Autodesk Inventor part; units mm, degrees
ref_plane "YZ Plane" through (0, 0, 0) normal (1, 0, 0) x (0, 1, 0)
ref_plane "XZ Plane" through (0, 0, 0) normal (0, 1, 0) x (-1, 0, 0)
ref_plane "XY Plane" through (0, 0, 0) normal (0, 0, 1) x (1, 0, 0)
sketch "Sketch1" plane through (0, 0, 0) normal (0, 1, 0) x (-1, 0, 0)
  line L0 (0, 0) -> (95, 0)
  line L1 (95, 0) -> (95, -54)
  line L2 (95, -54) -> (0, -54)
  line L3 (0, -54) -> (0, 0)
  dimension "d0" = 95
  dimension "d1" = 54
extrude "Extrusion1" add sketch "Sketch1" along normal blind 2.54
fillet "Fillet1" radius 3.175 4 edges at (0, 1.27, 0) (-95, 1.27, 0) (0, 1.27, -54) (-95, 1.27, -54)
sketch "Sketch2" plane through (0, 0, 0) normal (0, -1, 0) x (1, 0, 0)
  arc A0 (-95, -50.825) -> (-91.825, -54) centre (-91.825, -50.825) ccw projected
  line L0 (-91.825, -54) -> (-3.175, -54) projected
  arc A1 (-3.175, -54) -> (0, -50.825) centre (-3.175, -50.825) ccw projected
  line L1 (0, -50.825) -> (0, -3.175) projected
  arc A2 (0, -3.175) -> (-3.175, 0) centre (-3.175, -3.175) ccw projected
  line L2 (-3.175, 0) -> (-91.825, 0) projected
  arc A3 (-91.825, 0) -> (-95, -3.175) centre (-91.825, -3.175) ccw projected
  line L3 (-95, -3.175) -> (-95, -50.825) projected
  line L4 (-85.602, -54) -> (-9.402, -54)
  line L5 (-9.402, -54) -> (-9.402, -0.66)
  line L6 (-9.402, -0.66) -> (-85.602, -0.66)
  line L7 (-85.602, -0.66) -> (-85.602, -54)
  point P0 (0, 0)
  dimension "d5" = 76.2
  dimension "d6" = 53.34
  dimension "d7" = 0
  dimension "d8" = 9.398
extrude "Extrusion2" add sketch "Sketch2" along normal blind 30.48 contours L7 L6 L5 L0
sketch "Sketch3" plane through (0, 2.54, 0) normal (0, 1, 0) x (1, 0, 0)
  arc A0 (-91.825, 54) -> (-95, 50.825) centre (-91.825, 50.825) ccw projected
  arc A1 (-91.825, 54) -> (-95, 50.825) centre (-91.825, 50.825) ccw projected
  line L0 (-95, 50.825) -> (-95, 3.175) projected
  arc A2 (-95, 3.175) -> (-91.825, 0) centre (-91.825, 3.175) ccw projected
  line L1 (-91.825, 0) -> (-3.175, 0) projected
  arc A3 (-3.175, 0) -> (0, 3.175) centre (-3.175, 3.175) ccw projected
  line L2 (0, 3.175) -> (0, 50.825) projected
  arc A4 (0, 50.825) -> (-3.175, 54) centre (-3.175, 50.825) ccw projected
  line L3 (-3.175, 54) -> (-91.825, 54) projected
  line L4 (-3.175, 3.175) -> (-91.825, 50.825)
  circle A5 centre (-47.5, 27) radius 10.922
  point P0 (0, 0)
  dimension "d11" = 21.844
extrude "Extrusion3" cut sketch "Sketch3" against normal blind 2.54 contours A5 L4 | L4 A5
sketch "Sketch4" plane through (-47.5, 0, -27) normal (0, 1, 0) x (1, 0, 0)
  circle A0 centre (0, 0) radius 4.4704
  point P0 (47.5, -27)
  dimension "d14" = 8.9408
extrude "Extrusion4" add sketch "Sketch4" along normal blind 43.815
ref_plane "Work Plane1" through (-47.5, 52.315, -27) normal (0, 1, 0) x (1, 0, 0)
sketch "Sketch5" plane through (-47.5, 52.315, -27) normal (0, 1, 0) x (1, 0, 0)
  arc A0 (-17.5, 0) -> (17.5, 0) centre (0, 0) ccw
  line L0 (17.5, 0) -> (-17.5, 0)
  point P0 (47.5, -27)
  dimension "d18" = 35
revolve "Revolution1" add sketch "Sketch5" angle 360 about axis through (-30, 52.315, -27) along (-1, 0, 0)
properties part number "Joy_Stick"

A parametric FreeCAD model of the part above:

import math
import FreeCAD as App
import Part
import Sketcher

V = App.Vector
Q = App.Units.Quantity


def edges_at(feature, points):
    """Names of the edges that pass closest to the given points."""
    edges = feature.Shape.Edges
    near = lambda p: min(range(len(edges)), key=lambda i: edges[i].distToShape(Part.Vertex(*p))[0])
    return sorted({f"Edge{near(p) + 1}" for p in points})

doc = App.newDocument("Part")
body = doc.addObject("PartDesign::Body", "Body")

# Sketch on XZ plane
sketch1 = body.newObject("Sketcher::SketchObject", "Sketch")
sketch1.AttachmentSupport = (doc.getObject("XZ_Plane"), [""])
sketch1.MapMode = "FlatFace"
sketch1.addGeometry([
    Part.LineSegment(V(-95, 0, 0), V(0, 0, 0)),
    Part.LineSegment(V(0, 0, 0), V(0, -54, 0)),
    Part.LineSegment(V(0, -54, 0), V(-95, -54, 0)),
    Part.LineSegment(V(-95, -54, 0), V(-95, 0, 0)),
], False)
sketch1.addConstraint([
    Sketcher.Constraint("Coincident", 0, 2, 1, 1),
    Sketcher.Constraint("Coincident", 1, 2, 2, 1),
    Sketcher.Constraint("Coincident", 2, 2, 3, 1),
    Sketcher.Constraint("Coincident", 3, 2, 0, 1),
    Sketcher.Constraint("Horizontal", 0),
    Sketcher.Constraint("Vertical", 1),
    Sketcher.Constraint("Horizontal", 2),
    Sketcher.Constraint("Vertical", 3),
    Sketcher.Constraint("Coincident", 0, 2, -1, 1),
    Sketcher.Constraint("DistanceX", 0, 1, 0, 2, 95.0),
    Sketcher.Constraint("DistanceY", 1, 2, 1, 1, 54.0),
])
pad1 = body.newObject("PartDesign::Pad", "Pad")
pad1.Profile = sketch1
pad1.Length = Q("0.1 in")
pad1.Reversed = True
doc.recompute()

fillet = body.newObject("PartDesign::Fillet", "Fillet")
fillet.Base = (pad1, edges_at(pad1, [
    (0, 1.27, 0),
    (-95, 1.27, 0),
    (0, 1.27, -54),
    (-95, 1.27, -54),
]))
fillet.Radius = Q("0.125 in")

# Sketch on XZ plane
sketch2 = body.newObject("Sketcher::SketchObject", "Sketch001")
sketch2.AttachmentSupport = (doc.getObject("XZ_Plane"), [""])
sketch2.MapMode = "FlatFace"
sketch2.addGeometry([
    Part.LineSegment(V(-86, -1, 0), V(-86, -54, 0)),
    Part.LineSegment(V(-86, -54, 0), V(-9, -54, 0)),
    Part.LineSegment(V(-9, -54, 0), V(-9, -1, 0)),
    Part.LineSegment(V(-9, -1, 0), V(-86, -1, 0)),
], False)
sketch2.addConstraint([
    Sketcher.Constraint("Coincident", 0, 2, 1, 1),
    Sketcher.Constraint("Coincident", 1, 2, 2, 1),
    Sketcher.Constraint("Coincident", 2, 2, 3, 1),
    Sketcher.Constraint("Coincident", 3, 2, 0, 1),
    Sketcher.Constraint("Vertical", 0),
    Sketcher.Constraint("Horizontal", 1),
    Sketcher.Constraint("Vertical", 2),
    Sketcher.Constraint("Horizontal", 3),
    Sketcher.Constraint("DistanceX", 1, 1, 1, 2, Q("3 in")),
    Sketcher.Constraint("DistanceY", 0, 2, 0, 1, Q("2.1 in")),
    Sketcher.Constraint("DistanceX", 0, 2, -1, 1, 85.602),
    Sketcher.Constraint("DistanceY", 0, 2, -1, 1, 54.0),
])
pad2 = body.newObject("PartDesign::Pad", "Pad001")
pad2.Profile = sketch2
pad2.Length = Q("1.2 in")

# Sketch on XZ plane
sketch3 = body.newObject("Sketcher::SketchObject", "Sketch002")
sketch3.AttachmentSupport = (doc.getObject("XZ_Plane"), [""])
sketch3.MapMode = "FlatFace"
sketch3.AttachmentOffset = App.Placement(V(0, 0, -0.1 * 25.4), App.Rotation())
sketch3.addGeometry(Part.Circle(V(-48, -27, 0), V(0, 0, 1), 11), False)
sketch3.addConstraint([
    Sketcher.Constraint("Diameter", 0, Q("0.86 in")),
    Sketcher.Constraint("DistanceY", 0, 3, -1, 1, Q("1.063 in")),
    Sketcher.Constraint("DistanceX", 0, 3, -1, 1, 47.5),
])
pocket1 = body.newObject("PartDesign::Pocket", "Pocket")
pocket1.Profile = sketch3
pocket1.Length = Q("0.1 in")
pocket1.Reversed = True

# Sketch on XZ plane
sketch4 = body.newObject("Sketcher::SketchObject", "Sketch003")
sketch4.AttachmentSupport = (doc.getObject("XZ_Plane"), [""])
sketch4.MapMode = "FlatFace"
sketch4.addGeometry(Part.Circle(V(-47.5, -27, 0), V(0, 0, 1), 4.5), False)
sketch4.addConstraint([
    Sketcher.Constraint("Diameter", 0, Q("0.352 in")),
    Sketcher.Constraint("DistanceY", 0, 3, -1, 1, Q("1.063 in")),
    Sketcher.Constraint("DistanceX", 0, 3, -1, 1, 47.5),
])
pad3 = body.newObject("PartDesign::Pad", "Pad002")
pad3.Profile = sketch4
pad3.Length = Q("1.725 in")
pad3.Reversed = True

# Sketch on XZ plane
sketch5 = body.newObject("Sketcher::SketchObject", "Sketch004")
sketch5.AttachmentSupport = (doc.getObject("XZ_Plane"), [""])
sketch5.MapMode = "FlatFace"
sketch5.AttachmentOffset = App.Placement(V(0, 0, -52.315), App.Rotation())
sketch5.addGeometry([
    Part.LineSegment(V(-30, -27, 0), V(-65, -27, 0)),
    Part.ArcOfCircle(Part.Circle(V(-48, -27, 0), V(0, 0, 1), 18), math.radians(0), math.radians(180)),
], False)
sketch5.addGeometry(Part.LineSegment(V(-30, -27, 0), V(-65, -27, 0)), True)  # axis
sketch5.addConstraint([
    Sketcher.Constraint("Coincident", 0, 1, 1, 1),
    Sketcher.Constraint("Coincident", 1, 2, 0, 2),
    Sketcher.Constraint("Horizontal", 0),
    Sketcher.Constraint("Horizontal", 2),
    Sketcher.Constraint("Coincident", 2, 1, 0, 1),
    Sketcher.Constraint("Horizontal", 1, 3, 0, 1),
    Sketcher.Constraint("Equal", 0, 2),
    Sketcher.Constraint("Radius", 1, 17.5),
    Sketcher.Constraint("DistanceY", 1, 3, -1, 1, Q("1.063 in")),
    Sketcher.Constraint("DistanceX", 0, 1, -1, 1, Q("1.1811 in")),
])
revolution = body.newObject("PartDesign::Revolution", "Revolution")
revolution.Profile = sketch5
revolution.ReferenceAxis = (sketch5, ["Axis0"])
revolution.Angle = 360

doc.recompute()
